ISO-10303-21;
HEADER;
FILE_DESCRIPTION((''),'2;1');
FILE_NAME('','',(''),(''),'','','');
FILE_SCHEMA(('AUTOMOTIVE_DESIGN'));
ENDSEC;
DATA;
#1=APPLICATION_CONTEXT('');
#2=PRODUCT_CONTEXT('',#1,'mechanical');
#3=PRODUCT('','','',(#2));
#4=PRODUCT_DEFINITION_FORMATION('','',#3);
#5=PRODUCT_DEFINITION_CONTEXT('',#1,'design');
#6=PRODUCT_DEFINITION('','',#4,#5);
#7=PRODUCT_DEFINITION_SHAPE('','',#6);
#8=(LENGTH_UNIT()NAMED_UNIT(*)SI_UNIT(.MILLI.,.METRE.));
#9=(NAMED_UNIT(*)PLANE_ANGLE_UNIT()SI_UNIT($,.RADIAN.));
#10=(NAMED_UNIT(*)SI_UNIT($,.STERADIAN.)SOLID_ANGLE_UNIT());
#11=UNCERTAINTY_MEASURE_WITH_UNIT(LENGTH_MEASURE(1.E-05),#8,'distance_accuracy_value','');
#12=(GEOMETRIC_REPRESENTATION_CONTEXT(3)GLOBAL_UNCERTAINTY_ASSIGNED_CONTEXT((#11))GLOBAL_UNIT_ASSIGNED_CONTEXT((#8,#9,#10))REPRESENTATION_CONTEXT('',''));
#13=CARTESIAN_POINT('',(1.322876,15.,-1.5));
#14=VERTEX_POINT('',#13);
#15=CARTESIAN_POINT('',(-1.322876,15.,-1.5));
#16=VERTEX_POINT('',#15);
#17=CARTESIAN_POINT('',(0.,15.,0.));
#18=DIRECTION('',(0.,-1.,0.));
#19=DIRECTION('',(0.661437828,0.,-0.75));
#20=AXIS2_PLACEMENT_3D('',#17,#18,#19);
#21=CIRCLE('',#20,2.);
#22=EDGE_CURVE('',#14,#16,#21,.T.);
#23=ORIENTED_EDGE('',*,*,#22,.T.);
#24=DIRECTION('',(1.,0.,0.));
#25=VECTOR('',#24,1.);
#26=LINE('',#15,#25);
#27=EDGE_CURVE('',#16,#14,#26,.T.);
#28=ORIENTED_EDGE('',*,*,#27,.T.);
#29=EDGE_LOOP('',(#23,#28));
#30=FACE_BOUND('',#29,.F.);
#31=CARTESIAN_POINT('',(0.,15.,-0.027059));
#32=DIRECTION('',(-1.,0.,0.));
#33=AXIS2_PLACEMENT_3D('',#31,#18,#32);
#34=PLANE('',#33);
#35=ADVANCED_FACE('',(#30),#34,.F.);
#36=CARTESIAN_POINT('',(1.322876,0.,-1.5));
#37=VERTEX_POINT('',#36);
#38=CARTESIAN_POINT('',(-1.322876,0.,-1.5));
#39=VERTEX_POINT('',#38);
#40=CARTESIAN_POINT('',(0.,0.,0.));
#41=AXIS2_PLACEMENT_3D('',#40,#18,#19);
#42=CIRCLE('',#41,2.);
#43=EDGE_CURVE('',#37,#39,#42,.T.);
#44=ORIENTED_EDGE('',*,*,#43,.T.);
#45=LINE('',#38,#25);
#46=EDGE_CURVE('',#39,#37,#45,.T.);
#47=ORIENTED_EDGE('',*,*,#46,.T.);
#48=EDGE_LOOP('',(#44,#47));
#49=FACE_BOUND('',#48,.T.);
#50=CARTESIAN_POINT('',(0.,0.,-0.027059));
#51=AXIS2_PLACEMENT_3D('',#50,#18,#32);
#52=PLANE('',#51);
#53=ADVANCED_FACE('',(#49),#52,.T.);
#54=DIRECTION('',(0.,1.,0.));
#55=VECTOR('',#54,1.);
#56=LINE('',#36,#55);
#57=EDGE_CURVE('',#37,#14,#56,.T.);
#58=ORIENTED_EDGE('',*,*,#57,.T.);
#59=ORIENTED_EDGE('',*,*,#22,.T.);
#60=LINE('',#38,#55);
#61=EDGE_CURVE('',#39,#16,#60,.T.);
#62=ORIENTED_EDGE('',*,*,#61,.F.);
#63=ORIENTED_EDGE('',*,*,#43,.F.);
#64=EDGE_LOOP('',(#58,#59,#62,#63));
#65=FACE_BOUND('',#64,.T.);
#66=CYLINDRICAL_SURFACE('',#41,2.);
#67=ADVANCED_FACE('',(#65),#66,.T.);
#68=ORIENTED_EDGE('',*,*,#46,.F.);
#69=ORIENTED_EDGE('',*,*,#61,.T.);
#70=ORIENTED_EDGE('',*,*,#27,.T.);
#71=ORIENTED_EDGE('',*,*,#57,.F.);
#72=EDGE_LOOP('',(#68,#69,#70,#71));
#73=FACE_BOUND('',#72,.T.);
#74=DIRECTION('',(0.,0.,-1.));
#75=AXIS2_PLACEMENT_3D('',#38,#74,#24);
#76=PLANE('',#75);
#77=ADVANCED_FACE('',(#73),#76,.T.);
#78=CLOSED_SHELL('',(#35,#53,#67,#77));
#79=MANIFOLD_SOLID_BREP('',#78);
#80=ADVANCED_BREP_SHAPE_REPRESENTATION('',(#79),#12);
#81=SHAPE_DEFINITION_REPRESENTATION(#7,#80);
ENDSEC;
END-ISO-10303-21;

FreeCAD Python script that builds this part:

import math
import FreeCAD as App
import Part
import Sketcher
from FreeCAD import Vector
Q = App.Units.Quantity

doc = App.newDocument("Part")
body = doc.addObject("PartDesign::Body", "Body")

# Sketch on XZ plane
sketch1 = body.newObject("Sketcher::SketchObject", "Sketch")
sketch1.AttachmentSupport = (doc.getObject("XZ_Plane"), [""])
sketch1.MapMode = "FlatFace"
sketch1.addGeometry(Part.LineSegment(Vector(1.3, -1.5, 0), Vector(-1.3, -1.5, 0)), False)
sketch1.addGeometry(Part.ArcOfCircle(Part.Circle(Vector(0, 0, 0), Vector(0, 0, 1), 2), math.radians(-49), math.radians(229)), False)
sketch1.addConstraint(Sketcher.Constraint("Coincident", 0, 1, 1, 1))
sketch1.addConstraint(Sketcher.Constraint("Coincident", 1, 2, 0, 2))
sketch1.addConstraint(Sketcher.Constraint("Horizontal", 0))
sketch1.addConstraint(Sketcher.Constraint("Coincident", 1, 3, -1, 1))
sketch1.addConstraint(Sketcher.Constraint("Radius", 1, Q("2 mm")))
sketch1.addConstraint(Sketcher.Constraint("DistanceY", 0, 1, -1, 1, Q("1.5 mm")))
pad1 = body.newObject("PartDesign::Pad", "Pad")
pad1.Profile = sketch1
pad1.Length = 15
pad1.Reversed = True

doc.recompute()
